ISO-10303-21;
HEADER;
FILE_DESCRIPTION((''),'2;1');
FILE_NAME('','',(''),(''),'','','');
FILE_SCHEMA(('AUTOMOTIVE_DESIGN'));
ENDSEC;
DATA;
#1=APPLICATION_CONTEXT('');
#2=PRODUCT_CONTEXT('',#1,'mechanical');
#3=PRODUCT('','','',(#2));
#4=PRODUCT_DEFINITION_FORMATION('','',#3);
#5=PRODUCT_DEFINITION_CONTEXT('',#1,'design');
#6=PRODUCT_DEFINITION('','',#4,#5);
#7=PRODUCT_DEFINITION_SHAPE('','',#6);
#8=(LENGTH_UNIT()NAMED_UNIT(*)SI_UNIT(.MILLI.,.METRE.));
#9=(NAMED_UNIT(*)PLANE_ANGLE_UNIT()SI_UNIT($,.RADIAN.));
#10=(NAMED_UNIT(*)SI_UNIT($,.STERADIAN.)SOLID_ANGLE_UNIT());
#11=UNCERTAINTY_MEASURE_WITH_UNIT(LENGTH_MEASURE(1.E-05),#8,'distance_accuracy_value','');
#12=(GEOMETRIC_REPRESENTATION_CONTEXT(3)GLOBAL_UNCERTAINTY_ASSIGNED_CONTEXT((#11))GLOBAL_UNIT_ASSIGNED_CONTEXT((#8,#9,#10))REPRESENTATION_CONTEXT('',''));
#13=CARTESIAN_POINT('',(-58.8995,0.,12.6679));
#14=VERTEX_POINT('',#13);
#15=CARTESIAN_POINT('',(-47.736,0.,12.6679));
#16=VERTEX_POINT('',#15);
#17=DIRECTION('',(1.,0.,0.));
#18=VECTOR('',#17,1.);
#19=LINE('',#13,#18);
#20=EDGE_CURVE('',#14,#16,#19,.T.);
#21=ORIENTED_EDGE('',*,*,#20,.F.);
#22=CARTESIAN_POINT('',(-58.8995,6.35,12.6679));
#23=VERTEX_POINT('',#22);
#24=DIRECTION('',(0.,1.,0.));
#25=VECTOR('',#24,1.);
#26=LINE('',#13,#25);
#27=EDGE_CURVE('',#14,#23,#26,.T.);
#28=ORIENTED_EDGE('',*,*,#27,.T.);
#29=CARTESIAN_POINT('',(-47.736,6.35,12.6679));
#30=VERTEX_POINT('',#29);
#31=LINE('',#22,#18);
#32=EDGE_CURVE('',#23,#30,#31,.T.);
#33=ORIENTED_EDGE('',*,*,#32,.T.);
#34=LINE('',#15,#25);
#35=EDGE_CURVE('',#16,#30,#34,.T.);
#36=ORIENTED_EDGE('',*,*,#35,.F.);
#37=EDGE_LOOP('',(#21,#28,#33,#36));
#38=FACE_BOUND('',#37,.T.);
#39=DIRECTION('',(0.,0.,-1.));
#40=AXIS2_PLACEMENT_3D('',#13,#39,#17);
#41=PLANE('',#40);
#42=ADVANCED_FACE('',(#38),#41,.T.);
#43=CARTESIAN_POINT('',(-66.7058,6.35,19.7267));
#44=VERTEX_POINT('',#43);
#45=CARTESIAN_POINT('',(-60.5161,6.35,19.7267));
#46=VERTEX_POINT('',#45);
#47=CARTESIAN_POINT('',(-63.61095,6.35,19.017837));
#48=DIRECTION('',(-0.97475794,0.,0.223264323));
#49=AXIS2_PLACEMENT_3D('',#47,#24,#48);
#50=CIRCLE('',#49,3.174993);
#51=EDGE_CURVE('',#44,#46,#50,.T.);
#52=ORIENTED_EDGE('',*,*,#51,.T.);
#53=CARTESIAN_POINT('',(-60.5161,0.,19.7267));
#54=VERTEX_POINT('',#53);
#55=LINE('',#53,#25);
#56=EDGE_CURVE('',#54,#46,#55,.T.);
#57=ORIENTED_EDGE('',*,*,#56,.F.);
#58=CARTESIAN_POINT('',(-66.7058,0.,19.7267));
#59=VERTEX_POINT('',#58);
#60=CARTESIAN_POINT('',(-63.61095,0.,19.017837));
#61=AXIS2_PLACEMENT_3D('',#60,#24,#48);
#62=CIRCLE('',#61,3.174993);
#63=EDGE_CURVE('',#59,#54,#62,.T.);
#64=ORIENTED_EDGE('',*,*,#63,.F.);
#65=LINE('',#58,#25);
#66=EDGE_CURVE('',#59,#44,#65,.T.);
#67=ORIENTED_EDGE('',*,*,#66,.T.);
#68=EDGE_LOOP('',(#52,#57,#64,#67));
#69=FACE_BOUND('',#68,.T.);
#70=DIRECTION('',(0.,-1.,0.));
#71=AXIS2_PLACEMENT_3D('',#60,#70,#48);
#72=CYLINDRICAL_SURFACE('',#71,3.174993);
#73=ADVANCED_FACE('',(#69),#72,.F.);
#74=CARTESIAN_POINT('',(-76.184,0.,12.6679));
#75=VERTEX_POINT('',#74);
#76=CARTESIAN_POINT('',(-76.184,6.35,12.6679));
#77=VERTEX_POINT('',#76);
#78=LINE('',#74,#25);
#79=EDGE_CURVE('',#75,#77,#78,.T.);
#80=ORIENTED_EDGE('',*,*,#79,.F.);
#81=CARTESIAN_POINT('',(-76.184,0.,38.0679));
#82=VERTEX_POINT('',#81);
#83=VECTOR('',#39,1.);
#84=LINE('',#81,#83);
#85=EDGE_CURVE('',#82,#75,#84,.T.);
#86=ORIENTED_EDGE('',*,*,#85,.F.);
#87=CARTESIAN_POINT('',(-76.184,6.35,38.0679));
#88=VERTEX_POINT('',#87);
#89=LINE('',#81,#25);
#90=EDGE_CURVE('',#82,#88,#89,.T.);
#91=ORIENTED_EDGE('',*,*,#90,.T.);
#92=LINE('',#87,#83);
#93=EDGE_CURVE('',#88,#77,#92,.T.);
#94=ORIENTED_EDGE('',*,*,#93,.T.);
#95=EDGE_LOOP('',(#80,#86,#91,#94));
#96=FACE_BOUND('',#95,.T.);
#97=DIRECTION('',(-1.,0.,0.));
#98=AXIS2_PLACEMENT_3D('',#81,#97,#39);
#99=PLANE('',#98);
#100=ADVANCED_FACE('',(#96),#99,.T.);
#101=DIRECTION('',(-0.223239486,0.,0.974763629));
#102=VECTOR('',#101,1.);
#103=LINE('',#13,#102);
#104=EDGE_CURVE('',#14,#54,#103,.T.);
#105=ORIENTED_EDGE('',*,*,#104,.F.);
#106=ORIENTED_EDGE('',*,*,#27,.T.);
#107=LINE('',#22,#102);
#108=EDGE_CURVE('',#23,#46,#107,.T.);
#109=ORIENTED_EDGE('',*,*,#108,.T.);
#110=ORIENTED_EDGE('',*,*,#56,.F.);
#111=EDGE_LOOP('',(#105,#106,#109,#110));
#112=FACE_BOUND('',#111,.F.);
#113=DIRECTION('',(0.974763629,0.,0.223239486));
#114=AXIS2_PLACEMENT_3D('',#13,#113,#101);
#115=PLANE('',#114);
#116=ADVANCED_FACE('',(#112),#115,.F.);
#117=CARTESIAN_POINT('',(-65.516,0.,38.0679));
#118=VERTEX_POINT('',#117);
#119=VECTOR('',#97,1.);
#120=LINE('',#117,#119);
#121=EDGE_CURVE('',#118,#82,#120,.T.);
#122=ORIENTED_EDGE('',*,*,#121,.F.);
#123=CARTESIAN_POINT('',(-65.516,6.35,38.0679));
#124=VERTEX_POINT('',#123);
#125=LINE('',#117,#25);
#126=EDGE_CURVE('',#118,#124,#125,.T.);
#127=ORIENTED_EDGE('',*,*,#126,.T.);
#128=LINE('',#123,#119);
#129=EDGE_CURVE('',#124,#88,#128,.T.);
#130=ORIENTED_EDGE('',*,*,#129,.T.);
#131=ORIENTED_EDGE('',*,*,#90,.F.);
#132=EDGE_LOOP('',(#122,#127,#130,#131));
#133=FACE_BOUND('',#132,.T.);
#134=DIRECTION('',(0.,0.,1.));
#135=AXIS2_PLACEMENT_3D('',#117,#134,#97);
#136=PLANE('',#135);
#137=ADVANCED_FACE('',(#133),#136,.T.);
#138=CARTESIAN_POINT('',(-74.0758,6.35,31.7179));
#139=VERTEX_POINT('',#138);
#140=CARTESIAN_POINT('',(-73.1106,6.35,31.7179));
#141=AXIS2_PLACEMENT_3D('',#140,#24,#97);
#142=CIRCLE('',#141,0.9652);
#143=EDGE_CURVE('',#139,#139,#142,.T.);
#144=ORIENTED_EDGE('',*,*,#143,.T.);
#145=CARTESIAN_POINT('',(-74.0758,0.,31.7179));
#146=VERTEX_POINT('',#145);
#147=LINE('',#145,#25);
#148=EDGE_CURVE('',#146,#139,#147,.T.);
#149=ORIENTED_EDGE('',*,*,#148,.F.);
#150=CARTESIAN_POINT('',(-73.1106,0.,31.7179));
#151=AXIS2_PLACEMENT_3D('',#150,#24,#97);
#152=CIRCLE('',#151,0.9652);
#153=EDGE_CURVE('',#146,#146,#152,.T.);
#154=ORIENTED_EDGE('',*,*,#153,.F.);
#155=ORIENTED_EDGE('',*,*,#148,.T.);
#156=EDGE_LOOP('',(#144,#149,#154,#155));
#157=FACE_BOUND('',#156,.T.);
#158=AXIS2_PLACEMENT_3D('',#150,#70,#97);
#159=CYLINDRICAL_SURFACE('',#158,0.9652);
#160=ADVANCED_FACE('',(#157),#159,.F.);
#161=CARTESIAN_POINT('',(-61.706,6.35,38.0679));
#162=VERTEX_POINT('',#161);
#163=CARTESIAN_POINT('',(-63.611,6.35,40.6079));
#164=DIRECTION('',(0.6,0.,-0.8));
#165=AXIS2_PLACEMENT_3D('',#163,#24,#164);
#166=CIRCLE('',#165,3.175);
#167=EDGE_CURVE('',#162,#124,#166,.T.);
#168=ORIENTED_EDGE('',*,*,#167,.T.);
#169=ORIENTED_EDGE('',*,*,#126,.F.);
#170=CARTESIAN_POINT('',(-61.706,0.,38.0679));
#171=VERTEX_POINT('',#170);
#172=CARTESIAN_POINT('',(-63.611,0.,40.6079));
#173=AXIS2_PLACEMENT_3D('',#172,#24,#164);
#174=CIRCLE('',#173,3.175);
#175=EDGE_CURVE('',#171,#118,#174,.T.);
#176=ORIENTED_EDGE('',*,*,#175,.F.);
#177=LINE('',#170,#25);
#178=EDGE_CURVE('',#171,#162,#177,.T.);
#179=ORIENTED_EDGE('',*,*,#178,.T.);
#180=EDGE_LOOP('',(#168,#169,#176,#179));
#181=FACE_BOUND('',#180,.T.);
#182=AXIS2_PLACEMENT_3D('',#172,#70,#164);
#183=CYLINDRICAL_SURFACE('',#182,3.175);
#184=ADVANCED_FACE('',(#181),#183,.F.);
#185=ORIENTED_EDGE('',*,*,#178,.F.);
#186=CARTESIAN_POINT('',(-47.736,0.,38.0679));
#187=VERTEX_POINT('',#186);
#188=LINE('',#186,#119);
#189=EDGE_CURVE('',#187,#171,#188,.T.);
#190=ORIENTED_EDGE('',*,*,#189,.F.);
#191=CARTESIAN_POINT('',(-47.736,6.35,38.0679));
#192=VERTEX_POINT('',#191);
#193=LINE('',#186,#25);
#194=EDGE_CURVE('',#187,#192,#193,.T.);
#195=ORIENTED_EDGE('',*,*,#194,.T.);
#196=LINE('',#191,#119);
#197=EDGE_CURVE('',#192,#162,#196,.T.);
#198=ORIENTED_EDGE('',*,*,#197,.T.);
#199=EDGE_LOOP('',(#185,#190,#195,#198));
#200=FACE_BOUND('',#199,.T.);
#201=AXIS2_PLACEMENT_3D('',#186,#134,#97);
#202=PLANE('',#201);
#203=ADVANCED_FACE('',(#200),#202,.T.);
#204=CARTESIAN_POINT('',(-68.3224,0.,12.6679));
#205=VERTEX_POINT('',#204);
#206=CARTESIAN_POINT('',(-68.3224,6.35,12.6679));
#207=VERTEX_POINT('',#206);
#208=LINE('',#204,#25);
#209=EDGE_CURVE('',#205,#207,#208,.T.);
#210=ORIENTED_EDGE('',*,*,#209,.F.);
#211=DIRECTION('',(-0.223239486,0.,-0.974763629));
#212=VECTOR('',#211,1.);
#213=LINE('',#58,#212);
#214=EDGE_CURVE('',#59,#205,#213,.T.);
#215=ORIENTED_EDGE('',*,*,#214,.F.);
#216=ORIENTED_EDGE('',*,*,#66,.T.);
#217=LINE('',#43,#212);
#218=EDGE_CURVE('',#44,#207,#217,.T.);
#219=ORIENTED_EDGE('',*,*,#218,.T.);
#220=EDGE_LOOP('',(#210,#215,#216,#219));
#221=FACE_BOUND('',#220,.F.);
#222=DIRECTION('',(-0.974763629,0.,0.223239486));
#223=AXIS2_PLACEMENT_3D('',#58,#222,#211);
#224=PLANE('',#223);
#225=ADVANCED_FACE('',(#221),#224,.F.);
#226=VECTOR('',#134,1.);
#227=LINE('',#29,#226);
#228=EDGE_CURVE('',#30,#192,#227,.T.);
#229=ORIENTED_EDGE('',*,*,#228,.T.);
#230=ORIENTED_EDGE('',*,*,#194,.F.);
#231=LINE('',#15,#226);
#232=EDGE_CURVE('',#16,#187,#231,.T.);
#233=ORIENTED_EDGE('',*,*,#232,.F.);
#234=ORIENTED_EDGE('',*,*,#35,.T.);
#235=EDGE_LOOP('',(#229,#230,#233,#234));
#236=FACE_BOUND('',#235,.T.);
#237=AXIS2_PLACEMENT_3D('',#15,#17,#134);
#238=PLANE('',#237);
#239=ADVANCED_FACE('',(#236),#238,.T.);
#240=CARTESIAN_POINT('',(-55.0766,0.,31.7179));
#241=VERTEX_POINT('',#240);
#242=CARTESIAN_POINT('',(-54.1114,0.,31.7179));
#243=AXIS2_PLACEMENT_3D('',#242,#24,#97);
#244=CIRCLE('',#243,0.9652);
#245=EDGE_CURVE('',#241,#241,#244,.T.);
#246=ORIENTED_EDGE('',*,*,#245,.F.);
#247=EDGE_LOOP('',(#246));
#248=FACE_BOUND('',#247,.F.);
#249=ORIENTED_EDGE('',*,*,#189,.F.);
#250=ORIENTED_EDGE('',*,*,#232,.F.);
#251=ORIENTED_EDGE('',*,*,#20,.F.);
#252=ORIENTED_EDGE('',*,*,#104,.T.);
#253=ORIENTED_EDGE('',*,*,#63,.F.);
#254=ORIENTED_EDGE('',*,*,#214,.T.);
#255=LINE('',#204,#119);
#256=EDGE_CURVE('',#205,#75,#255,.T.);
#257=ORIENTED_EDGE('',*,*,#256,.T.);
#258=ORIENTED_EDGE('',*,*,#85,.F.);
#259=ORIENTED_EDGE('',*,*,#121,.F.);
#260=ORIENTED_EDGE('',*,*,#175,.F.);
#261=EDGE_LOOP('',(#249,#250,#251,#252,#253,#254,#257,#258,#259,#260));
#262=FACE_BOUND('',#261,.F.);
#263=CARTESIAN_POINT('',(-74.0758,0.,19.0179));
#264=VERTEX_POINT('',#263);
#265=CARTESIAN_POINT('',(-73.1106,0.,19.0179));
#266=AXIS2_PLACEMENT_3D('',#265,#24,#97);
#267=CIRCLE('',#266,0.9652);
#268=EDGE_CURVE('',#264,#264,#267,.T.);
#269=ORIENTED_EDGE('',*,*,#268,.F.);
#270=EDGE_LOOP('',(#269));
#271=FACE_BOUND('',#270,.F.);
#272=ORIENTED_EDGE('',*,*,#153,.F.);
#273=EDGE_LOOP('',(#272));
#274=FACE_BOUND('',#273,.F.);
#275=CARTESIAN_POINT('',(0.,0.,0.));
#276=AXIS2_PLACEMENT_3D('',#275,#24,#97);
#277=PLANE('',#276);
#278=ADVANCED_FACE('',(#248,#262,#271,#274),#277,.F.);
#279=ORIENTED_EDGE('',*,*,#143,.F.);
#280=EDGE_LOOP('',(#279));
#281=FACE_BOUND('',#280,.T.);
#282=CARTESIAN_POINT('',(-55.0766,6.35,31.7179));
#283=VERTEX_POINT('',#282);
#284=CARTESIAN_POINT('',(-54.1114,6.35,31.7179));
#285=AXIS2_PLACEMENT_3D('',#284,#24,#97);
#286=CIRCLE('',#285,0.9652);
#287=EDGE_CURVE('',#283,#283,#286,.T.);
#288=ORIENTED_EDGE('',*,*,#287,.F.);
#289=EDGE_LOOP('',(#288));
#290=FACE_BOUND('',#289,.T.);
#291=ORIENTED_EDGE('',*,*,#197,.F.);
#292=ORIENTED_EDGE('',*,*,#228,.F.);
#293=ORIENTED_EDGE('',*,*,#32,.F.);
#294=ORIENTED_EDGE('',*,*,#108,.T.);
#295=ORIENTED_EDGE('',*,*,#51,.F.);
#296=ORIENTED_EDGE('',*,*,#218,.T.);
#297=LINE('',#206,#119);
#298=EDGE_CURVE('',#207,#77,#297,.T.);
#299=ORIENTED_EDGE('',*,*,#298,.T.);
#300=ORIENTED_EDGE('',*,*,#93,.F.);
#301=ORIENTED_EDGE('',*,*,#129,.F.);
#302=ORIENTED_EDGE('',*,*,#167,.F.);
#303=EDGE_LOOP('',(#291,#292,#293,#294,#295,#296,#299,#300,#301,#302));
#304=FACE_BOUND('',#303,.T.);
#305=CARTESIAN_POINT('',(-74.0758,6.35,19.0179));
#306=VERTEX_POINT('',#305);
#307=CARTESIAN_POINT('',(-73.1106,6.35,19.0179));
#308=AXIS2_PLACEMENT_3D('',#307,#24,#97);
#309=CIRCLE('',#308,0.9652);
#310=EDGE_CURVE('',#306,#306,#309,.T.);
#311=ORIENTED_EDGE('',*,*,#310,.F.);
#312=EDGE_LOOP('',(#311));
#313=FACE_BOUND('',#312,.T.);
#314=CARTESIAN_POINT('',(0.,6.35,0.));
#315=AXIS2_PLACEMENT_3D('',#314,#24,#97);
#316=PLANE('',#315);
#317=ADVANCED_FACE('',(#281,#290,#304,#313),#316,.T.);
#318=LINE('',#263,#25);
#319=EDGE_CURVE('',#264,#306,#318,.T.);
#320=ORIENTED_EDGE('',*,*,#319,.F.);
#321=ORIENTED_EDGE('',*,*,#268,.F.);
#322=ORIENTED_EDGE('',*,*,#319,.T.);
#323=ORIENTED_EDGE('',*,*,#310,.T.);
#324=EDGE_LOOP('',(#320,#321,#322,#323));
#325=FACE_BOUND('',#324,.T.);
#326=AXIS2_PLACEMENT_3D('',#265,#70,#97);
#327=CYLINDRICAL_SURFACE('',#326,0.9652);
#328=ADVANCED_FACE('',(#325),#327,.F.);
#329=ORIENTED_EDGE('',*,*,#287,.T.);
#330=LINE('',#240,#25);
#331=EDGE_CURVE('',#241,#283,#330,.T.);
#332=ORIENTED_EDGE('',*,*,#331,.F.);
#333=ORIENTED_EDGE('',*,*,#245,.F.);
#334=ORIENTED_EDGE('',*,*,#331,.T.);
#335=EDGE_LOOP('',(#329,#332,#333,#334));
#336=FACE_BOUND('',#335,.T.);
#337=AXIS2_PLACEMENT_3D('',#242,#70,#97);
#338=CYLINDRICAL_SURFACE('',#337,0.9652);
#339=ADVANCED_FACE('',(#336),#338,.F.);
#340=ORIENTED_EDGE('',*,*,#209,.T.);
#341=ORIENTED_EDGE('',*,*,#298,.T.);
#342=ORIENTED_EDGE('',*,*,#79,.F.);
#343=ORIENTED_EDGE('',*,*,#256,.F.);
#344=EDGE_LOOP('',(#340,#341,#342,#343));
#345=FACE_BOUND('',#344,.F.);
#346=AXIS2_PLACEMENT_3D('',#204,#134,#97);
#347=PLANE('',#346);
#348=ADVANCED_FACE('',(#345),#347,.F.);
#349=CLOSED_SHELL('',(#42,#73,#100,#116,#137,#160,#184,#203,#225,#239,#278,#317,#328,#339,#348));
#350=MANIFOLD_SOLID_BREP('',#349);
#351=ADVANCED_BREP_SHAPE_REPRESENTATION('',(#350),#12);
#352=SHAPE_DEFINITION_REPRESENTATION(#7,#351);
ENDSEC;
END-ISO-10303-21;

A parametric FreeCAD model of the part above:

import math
import FreeCAD as App
import Part
import Sketcher
from FreeCAD import Vector
Q = App.Units.Quantity

doc = App.newDocument("Part")
body = doc.addObject("PartDesign::Body", "Body")

# Sketch on XZ plane
sketch1 = doc.addObject("Sketcher::SketchObject", "Sketch")
body.addObject(sketch1)
sketch1.AttachmentSupport = (doc.XZ_Plane, [""])
sketch1.MapMode = "FlatFace"
sketch1.addGeometry(Part.LineSegment(Vector(-47.7, 12.7, 0), Vector(-58.9, 12.7, 0)), False)
sketch1.addGeometry(Part.LineSegment(Vector(-58.9, 12.7, 0), Vector(-60.5, 19.7, 0)), False)
sketch1.addGeometry(Part.ArcOfCircle(Part.Circle(Vector(-63.6, 19, 0), Vector(0, 0, 1), 3.2), math.radians(13), math.radians(167)), False)
sketch1.addGeometry(Part.LineSegment(Vector(-66.7, 19.7, 0), Vector(-68.3, 12.7, 0)), False)
sketch1.addGeometry(Part.LineSegment(Vector(-68.3, 12.7, 0), Vector(-76.2, 12.7, 0)), False)
sketch1.addGeometry(Part.LineSegment(Vector(-76.2, 12.7, 0), Vector(-76.2, 38.1, 0)), False)
sketch1.addGeometry(Part.LineSegment(Vector(-76.2, 38.1, 0), Vector(-65.5, 38.1, 0)), False)
sketch1.addGeometry(Part.ArcOfCircle(Part.Circle(Vector(-63.6, 40.6, 0), Vector(0, 0, 1), 3.2), math.radians(-127), math.radians(-53)), False)
sketch1.addGeometry(Part.LineSegment(Vector(-61.7, 38.1, 0), Vector(-47.7, 38.1, 0)), False)
sketch1.addGeometry(Part.LineSegment(Vector(-47.7, 38.1, 0), Vector(-47.7, 12.7, 0)), False)
sketch1.addGeometry(Part.Circle(Vector(-73.1, 19, 0), Vector(0, 0, 1), 1), False)
sketch1.addGeometry(Part.Circle(Vector(-54.1, 31.7, 0), Vector(0, 0, 1), 1), False)
sketch1.addGeometry(Part.Circle(Vector(-73.1, 31.7, 0), Vector(0, 0, 1), 1), False)
sketch1.addConstraint(Sketcher.Constraint("Coincident", 0, 2, 1, 1))
sketch1.addConstraint(Sketcher.Constraint("Tangent", 1, 2, 2, 1))
sketch1.addConstraint(Sketcher.Constraint("Tangent", 2, 2, 3, 1))
sketch1.addConstraint(Sketcher.Constraint("Coincident", 3, 2, 4, 1))
sketch1.addConstraint(Sketcher.Constraint("Coincident", 4, 2, 5, 1))
sketch1.addConstraint(Sketcher.Constraint("Coincident", 5, 2, 6, 1))
sketch1.addConstraint(Sketcher.Constraint("Coincident", 6, 2, 7, 1))
sketch1.addConstraint(Sketcher.Constraint("Coincident", 7, 2, 8, 1))
sketch1.addConstraint(Sketcher.Constraint("Coincident", 8, 2, 9, 1))
sketch1.addConstraint(Sketcher.Constraint("Coincident", 9, 2, 0, 1))
sketch1.addConstraint(Sketcher.Constraint("Horizontal", 0))
sketch1.addConstraint(Sketcher.Constraint("Horizontal", 4))
sketch1.addConstraint(Sketcher.Constraint("Vertical", 5))
sketch1.addConstraint(Sketcher.Constraint("Horizontal", 6))
sketch1.addConstraint(Sketcher.Constraint("Horizontal", 8))
sketch1.addConstraint(Sketcher.Constraint("Vertical", 9))
sketch1.addConstraint(Sketcher.Constraint("Equal", 2, 7))
sketch1.addConstraint(Sketcher.Constraint("Equal", 10, 11))
sketch1.addConstraint(Sketcher.Constraint("Equal", 11, 12))
sketch1.addConstraint(Sketcher.Constraint("Horizontal", 2, 3, 10, 3))
sketch1.addConstraint(Sketcher.Constraint("Horizontal", 11, 3, 12, 3))
sketch1.addConstraint(Sketcher.Constraint("Horizontal", 1, 2, 2, 2))
sketch1.addConstraint(Sketcher.Constraint("Horizontal", 0, 2, 3, 2))
sketch1.addConstraint(Sketcher.Constraint("Horizontal", 6, 2, 7, 2))
sketch1.addConstraint(Sketcher.Constraint("Vertical", 2, 3, 7, 3))
sketch1.addConstraint(Sketcher.Constraint("Vertical", 10, 3, 12, 3))
sketch1.addConstraint(Sketcher.Constraint("DistanceY", 5, 1, 5, 2, Q("1 in")))
sketch1.addConstraint(Sketcher.Constraint("Diameter", 10, Q("0.076 in")))
sketch1.addConstraint(Sketcher.Constraint("Radius", 2, Q("0.125 in")))
sketch1.addConstraint(Sketcher.Constraint("DistanceX", 10, 3, 11, 3, Q("0.748 in")))
sketch1.addConstraint(Sketcher.Constraint("DistanceX", 11, 3, 8, 2, Q("0.251 in")))
sketch1.addConstraint(Sketcher.Constraint("DistanceX", 7, 3, 8, 2, Q("0.625 in")))
sketch1.addConstraint(Sketcher.Constraint("DistanceX", 6, 1, 6, 2, Q("0.42 in")))
sketch1.addConstraint(Sketcher.Constraint("DistanceX", 8, 1, 8, 2, Q("0.55 in")))
sketch1.addConstraint(Sketcher.Constraint("Angle", 1, Q("102.8994 deg")))
sketch1.addConstraint(Sketcher.Constraint("DistanceY", 2, 3, 11, 3, Q("0.5 in")))
sketch1.addConstraint(Sketcher.Constraint("DistanceY", 2, 3, 7, 3, Q("0.85 in")))
sketch1.addConstraint(Sketcher.Constraint("DistanceX", 2, 3, -1, 1, 63.611))
sketch1.addConstraint(Sketcher.Constraint("DistanceY", -1, 1, 2, 3, 19.018))
pad1 = doc.addObject("PartDesign::Pad", "Pad")
body.addObject(pad1)
pad1.Profile = sketch1
pad1.Length = Q("0.25 in")
pad1.Reversed = True

doc.recompute()
